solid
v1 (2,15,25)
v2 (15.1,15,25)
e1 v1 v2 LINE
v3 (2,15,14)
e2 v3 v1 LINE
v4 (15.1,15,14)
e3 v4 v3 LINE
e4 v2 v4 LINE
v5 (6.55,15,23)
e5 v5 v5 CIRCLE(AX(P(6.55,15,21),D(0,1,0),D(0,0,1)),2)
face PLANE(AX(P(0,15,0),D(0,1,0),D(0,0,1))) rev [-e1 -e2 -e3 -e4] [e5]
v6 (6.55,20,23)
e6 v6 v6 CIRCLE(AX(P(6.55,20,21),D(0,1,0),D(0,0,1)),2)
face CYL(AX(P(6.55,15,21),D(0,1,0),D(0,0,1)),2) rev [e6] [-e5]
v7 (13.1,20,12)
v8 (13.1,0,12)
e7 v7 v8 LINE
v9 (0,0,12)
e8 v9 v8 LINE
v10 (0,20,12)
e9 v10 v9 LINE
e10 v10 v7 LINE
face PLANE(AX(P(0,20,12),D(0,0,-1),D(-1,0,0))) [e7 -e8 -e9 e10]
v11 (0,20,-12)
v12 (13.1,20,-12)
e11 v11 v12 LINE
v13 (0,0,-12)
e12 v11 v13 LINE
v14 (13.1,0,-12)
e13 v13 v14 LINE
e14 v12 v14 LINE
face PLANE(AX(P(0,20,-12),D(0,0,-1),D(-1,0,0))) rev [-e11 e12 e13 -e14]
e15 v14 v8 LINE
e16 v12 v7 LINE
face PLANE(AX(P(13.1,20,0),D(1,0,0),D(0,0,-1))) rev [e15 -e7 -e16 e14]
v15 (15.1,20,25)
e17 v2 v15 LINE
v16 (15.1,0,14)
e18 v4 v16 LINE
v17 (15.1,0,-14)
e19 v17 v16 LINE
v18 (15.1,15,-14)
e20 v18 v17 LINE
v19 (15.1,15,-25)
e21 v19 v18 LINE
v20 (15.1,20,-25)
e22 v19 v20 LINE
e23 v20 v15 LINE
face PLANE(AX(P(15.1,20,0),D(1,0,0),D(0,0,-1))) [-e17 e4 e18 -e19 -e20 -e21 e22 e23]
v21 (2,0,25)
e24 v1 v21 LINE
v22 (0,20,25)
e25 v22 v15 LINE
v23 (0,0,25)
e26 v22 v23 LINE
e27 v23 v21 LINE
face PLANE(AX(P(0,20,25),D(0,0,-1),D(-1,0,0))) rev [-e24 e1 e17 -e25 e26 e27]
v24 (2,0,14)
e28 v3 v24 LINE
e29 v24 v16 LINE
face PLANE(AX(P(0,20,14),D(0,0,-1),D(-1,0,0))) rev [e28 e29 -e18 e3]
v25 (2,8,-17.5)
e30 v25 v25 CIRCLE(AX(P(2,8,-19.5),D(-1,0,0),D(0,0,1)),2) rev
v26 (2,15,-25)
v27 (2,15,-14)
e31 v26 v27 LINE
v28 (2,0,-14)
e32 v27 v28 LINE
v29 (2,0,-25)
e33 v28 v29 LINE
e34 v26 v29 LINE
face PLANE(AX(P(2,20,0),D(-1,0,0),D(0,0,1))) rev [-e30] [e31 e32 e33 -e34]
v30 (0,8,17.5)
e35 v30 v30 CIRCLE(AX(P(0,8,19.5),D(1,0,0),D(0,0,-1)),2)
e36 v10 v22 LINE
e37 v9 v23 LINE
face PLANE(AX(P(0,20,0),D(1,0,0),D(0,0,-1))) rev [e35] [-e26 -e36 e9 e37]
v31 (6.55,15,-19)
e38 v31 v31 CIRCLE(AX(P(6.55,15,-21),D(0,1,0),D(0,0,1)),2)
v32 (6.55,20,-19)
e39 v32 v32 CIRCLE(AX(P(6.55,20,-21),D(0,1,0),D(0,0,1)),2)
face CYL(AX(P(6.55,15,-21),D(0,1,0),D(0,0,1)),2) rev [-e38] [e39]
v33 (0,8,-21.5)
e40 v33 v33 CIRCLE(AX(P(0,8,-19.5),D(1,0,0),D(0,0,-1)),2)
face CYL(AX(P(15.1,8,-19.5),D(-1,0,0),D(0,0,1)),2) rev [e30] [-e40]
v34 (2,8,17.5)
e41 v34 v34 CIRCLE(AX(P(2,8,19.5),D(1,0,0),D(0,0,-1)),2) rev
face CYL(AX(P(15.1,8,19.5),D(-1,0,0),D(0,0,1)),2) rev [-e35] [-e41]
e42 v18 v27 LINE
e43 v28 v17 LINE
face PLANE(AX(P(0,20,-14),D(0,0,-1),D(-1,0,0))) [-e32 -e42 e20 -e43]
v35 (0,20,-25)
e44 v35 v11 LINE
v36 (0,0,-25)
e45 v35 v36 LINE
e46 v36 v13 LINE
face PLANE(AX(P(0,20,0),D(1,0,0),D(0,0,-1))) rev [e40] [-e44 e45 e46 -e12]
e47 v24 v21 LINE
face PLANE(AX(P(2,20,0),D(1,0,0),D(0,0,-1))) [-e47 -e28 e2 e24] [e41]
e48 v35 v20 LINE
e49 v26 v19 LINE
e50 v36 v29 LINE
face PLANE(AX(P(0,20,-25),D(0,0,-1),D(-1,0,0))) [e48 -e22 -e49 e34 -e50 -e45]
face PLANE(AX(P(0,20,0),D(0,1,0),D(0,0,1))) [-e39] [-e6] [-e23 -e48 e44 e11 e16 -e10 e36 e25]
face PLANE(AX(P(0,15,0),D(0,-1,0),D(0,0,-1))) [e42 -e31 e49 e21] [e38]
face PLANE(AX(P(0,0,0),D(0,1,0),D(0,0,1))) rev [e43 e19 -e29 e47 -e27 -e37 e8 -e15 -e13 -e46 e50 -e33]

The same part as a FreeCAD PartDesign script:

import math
import FreeCAD as App
import Part
import Sketcher

V = App.Vector
Q = App.Units.Quantity

doc = App.newDocument("Part")
body = doc.addObject("PartDesign::Body", "Body")

# Sketch on XZ plane
sketch1 = body.newObject("Sketcher::SketchObject", "Sketch")
sketch1.AttachmentSupport = (doc.getObject("XZ_Plane"), [""])
sketch1.MapMode = "FlatFace"
sketch1.addGeometry(Part.LineSegment(V(15.1, 14, 0), V(15.1, -14, 0)), False)
sketch1.addGeometry(Part.LineSegment(V(15.1, -14, 0), V(2, -14, 0)), False)
sketch1.addGeometry(Part.LineSegment(V(2, -14, 0), V(2, -25, 0)), False)
sketch1.addGeometry(Part.LineSegment(V(2, -25, 0), V(0, -25, 0)), False)
sketch1.addGeometry(Part.LineSegment(V(0, -25, 0), V(0, -12, 0)), False)
sketch1.addGeometry(Part.LineSegment(V(0, -12, 0), V(13.1, -12, 0)), False)
sketch1.addGeometry(Part.LineSegment(V(13.1, -12, 0), V(13.1, 12, 0)), False)
sketch1.addGeometry(Part.LineSegment(V(13.1, 12, 0), V(0, 12, 0)), False)
sketch1.addGeometry(Part.LineSegment(V(0, 12, 0), V(0, 25, 0)), False)
sketch1.addGeometry(Part.LineSegment(V(0, 25, 0), V(2, 25, 0)), False)
sketch1.addGeometry(Part.LineSegment(V(2, 25, 0), V(2, 14, 0)), False)
sketch1.addGeometry(Part.LineSegment(V(2, 14, 0), V(15.1, 14, 0)), False)
sketch1.addConstraint(Sketcher.Constraint("Coincident", 0, 2, 1, 1))
sketch1.addConstraint(Sketcher.Constraint("Coincident", 1, 2, 2, 1))
sketch1.addConstraint(Sketcher.Constraint("Coincident", 2, 2, 3, 1))
sketch1.addConstraint(Sketcher.Constraint("Coincident", 3, 2, 4, 1))
sketch1.addConstraint(Sketcher.Constraint("Coincident", 4, 2, 5, 1))
sketch1.addConstraint(Sketcher.Constraint("Coincident", 5, 2, 6, 1))
sketch1.addConstraint(Sketcher.Constraint("Coincident", 6, 2, 7, 1))
sketch1.addConstraint(Sketcher.Constraint("Coincident", 7, 2, 8, 1))
sketch1.addConstraint(Sketcher.Constraint("Coincident", 8, 2, 9, 1))
sketch1.addConstraint(Sketcher.Constraint("Coincident", 9, 2, 10, 1))
sketch1.addConstraint(Sketcher.Constraint("Coincident", 10, 2, 11, 1))
sketch1.addConstraint(Sketcher.Constraint("Coincident", 11, 2, 0, 1))
sketch1.addConstraint(Sketcher.Constraint("Vertical", 0))
sketch1.addConstraint(Sketcher.Constraint("Horizontal", 1))
sketch1.addConstraint(Sketcher.Constraint("Vertical", 2))
sketch1.addConstraint(Sketcher.Constraint("Horizontal", 3))
sketch1.addConstraint(Sketcher.Constraint("Vertical", 4))
sketch1.addConstraint(Sketcher.Constraint("Horizontal", 5))
sketch1.addConstraint(Sketcher.Constraint("Vertical", 6))
sketch1.addConstraint(Sketcher.Constraint("Horizontal", 7))
sketch1.addConstraint(Sketcher.Constraint("Vertical", 8))
sketch1.addConstraint(Sketcher.Constraint("Horizontal", 9))
sketch1.addConstraint(Sketcher.Constraint("Vertical", 10))
sketch1.addConstraint(Sketcher.Constraint("Horizontal", 11))
sketch1.addConstraint(Sketcher.Constraint("Symmetric", 4, 2, 7, 2, -1, 1))
sketch1.addConstraint(Sketcher.Constraint("Symmetric", 3, 2, 8, 2, -1))
sketch1.addConstraint(Sketcher.Constraint("Symmetric", 1, 2, 10, 2, -1))
sketch1.addConstraint(Sketcher.Constraint("Equal", 1, 5))
sketch1.addConstraint(Sketcher.Constraint("DistanceX", 3, 2, 3, 1, Q("2 mm")))
sketch1.addConstraint(Sketcher.Constraint("DistanceY", 0, 2, 0, 1, Q("28 mm")))
sketch1.addConstraint(Sketcher.Constraint("DistanceY", 2, 2, 2, 1, Q("11 mm")))
sketch1.addConstraint(Sketcher.Constraint("DistanceY", 4, 1, 4, 2, Q("13 mm")))
sketch1.addConstraint(Sketcher.Constraint("DistanceX", 1, 2, 1, 1, Q("13.1 mm")))
pad1 = body.newObject("PartDesign::Pad", "Pad")
pad1.Profile = sketch1
pad1.Length = 20
pad1.Reversed = True

# Sketch on YZ plane
sketch2 = body.newObject("Sketcher::SketchObject", "Sketch001")
sketch2.AttachmentSupport = (doc.getObject("YZ_Plane"), [""])
sketch2.MapMode = "FlatFace"
sketch2.AttachmentOffset = App.Placement(V(0, 0, 2), App.Rotation())
sketch2.addGeometry(Part.Circle(V(8, 19.5, 0), V(0, 0, 1), 2), False)
sketch2.addGeometry(Part.Circle(V(8, -19.5, 0), V(0, 0, 1), 2), False)
sketch2.addConstraint(Sketcher.Constraint("Equal", 0, 1))
sketch2.addConstraint(Sketcher.Constraint("Symmetric", 0, 3, 1, 3, -1))
sketch2.addConstraint(Sketcher.Constraint("Diameter", 0, Q("4 mm")))
sketch2.addConstraint(Sketcher.Constraint("DistanceX", -1, 1, 0, 3, Q("8 mm")))
sketch2.addConstraint(Sketcher.Constraint("DistanceY", 1, 3, 0, 3, Q("39 mm")))
pocket1 = body.newObject("PartDesign::Pocket", "Pocket")
pocket1.Profile = sketch2
pocket1.Type = "ThroughAll"
pocket1.Midplane = True

# Sketch on XZ plane
sketch3 = body.newObject("Sketcher::SketchObject", "Sketch002")
sketch3.AttachmentSupport = (doc.getObject("XZ_Plane"), [""])
sketch3.MapMode = "FlatFace"
sketch3.AttachmentOffset = App.Placement(V(0, 0, -20), App.Rotation())
sketch3.addGeometry(Part.LineSegment(V(15.1, 25, 0), V(15.1, 14, 0)), False)
sketch3.addGeometry(Part.LineSegment(V(15.1, 14, 0), V(2, 14, 0)), False)
sketch3.addGeometry(Part.LineSegment(V(2, 14, 0), V(2, 25, 0)), False)
sketch3.addGeometry(Part.LineSegment(V(2, 25, 0), V(15.1, 25, 0)), False)
sketch3.addGeometry(Part.ArcOfCircle(Part.Circle(V(6.5, 21, 0), V(0, 0, 1), 2), math.radians(-90), math.radians(0)), False)
sketch3.addGeometry(Part.ArcOfCircle(Part.Circle(V(6.5, 21, 0), V(0, 0, 1), 2), math.radians(0), math.radians(90)), False)
sketch3.addGeometry(Part.ArcOfCircle(Part.Circle(V(6.5, 21, 0), V(0, 0, 1), 2), math.radians(90), math.radians(270)), False)
sketch3.addGeometry(Part.LineSegment(V(15.1, -14, 0), V(15.1, -25, 0)), False)
sketch3.addGeometry(Part.LineSegment(V(15.1, -25, 0), V(2, -25, 0)), False)
sketch3.addGeometry(Part.LineSegment(V(2, -25, 0), V(2, -14, 0)), False)
sketch3.addGeometry(Part.LineSegment(V(2, -14, 0), V(15.1, -14, 0)), False)
sketch3.addGeometry(Part.ArcOfCircle(Part.Circle(V(6.5, -21, 0), V(0, 0, 1), 2), math.radians(-90), math.radians(0)), False)
sketch3.addGeometry(Part.ArcOfCircle(Part.Circle(V(6.5, -21, 0), V(0, 0, 1), 2), math.radians(0), math.radians(90)), False)
sketch3.addGeometry(Part.ArcOfCircle(Part.Circle(V(6.5, -21, 0), V(0, 0, 1), 2), math.radians(90), math.radians(270)), False)
sketch3.addConstraint(Sketcher.Constraint("Coincident", 0, 2, 1, 1))
sketch3.addConstraint(Sketcher.Constraint("Coincident", 1, 2, 2, 1))
sketch3.addConstraint(Sketcher.Constraint("Coincident", 2, 2, 3, 1))
sketch3.addConstraint(Sketcher.Constraint("Coincident", 3, 2, 0, 1))
sketch3.addConstraint(Sketcher.Constraint("Tangent", 4, 2, 5, 1))
sketch3.addConstraint(Sketcher.Constraint("Tangent", 5, 2, 6, 1))
sketch3.addConstraint(Sketcher.Constraint("Tangent", 6, 2, 4, 1))
sketch3.addConstraint(Sketcher.Constraint("Coincident", 7, 2, 8, 1))
sketch3.addConstraint(Sketcher.Constraint("Coincident", 8, 2, 9, 1))
sketch3.addConstraint(Sketcher.Constraint("Coincident", 9, 2, 10, 1))
sketch3.addConstraint(Sketcher.Constraint("Coincident", 10, 2, 7, 1))
sketch3.addConstraint(Sketcher.Constraint("Tangent", 11, 2, 12, 1))
sketch3.addConstraint(Sketcher.Constraint("Tangent", 12, 2, 13, 1))
sketch3.addConstraint(Sketcher.Constraint("Tangent", 13, 2, 11, 1))
sketch3.addConstraint(Sketcher.Constraint("Vertical", 0))
sketch3.addConstraint(Sketcher.Constraint("Horizontal", 1))
sketch3.addConstraint(Sketcher.Constraint("Vertical", 2))
sketch3.addConstraint(Sketcher.Constraint("Horizontal", 3))
sketch3.addConstraint(Sketcher.Constraint("Vertical", 7))
sketch3.addConstraint(Sketcher.Constraint("Horizontal", 8))
sketch3.addConstraint(Sketcher.Constraint("Vertical", 9))
sketch3.addConstraint(Sketcher.Constraint("Horizontal", 10))
sketch3.addConstraint(Sketcher.Constraint("Equal", 6, 11))
sketch3.addConstraint(Sketcher.Constraint("Symmetric", 4, 3, 11, 3, -1))
sketch3.addConstraint(Sketcher.Constraint("Symmetric", 3, 2, 7, 2, -1))
sketch3.addConstraint(Sketcher.Constraint("Symmetric", 1, 2, 9, 2, -1))
sketch3.addConstraint(Sketcher.Constraint("Horizontal", 6, 3, 4, 2))
sketch3.addConstraint(Sketcher.Constraint("Horizontal", 13, 3, 11, 2))
sketch3.addConstraint(Sketcher.Constraint("Vertical", 13, 3, 5, 2))
sketch3.addConstraint(Sketcher.Constraint("Vertical", 5, 2, 6, 2))
sketch3.addConstraint(Sketcher.Constraint("Vertical", 6, 2, 12, 2))
sketch3.addConstraint(Sketcher.Constraint("Vertical", 12, 2, 13, 2))
sketch3.addConstraint(Sketcher.Constraint("Radius", 4, Q("2 mm")))
sketch3.addConstraint(Sketcher.Constraint("DistanceY", 0, 2, 0, 1, Q("11 mm")))
sketch3.addConstraint(Sketcher.Constraint("DistanceX", 1, 2, 1, 1, Q("13.1 mm")))
sketch3.addConstraint(Sketcher.Constraint("DistanceY", -1, 1, 4, 3, Q("21 mm")))
sketch3.addConstraint(Sketcher.Constraint("DistanceY", -1, 1, 0, 2, Q("14 mm")))
sketch3.addConstraint(Sketcher.Constraint("DistanceX", -1, 1, 1, 2, Q("2 mm")))
sketch3.addConstraint(Sketcher.Constraint("DistanceX", -1, 1, 4, 3, Q("6.55 mm")))
pad2 = body.newObject("PartDesign::Pad", "Pad001")
pad2.Profile = sketch3
pad2.Length = 5

doc.recompute()
